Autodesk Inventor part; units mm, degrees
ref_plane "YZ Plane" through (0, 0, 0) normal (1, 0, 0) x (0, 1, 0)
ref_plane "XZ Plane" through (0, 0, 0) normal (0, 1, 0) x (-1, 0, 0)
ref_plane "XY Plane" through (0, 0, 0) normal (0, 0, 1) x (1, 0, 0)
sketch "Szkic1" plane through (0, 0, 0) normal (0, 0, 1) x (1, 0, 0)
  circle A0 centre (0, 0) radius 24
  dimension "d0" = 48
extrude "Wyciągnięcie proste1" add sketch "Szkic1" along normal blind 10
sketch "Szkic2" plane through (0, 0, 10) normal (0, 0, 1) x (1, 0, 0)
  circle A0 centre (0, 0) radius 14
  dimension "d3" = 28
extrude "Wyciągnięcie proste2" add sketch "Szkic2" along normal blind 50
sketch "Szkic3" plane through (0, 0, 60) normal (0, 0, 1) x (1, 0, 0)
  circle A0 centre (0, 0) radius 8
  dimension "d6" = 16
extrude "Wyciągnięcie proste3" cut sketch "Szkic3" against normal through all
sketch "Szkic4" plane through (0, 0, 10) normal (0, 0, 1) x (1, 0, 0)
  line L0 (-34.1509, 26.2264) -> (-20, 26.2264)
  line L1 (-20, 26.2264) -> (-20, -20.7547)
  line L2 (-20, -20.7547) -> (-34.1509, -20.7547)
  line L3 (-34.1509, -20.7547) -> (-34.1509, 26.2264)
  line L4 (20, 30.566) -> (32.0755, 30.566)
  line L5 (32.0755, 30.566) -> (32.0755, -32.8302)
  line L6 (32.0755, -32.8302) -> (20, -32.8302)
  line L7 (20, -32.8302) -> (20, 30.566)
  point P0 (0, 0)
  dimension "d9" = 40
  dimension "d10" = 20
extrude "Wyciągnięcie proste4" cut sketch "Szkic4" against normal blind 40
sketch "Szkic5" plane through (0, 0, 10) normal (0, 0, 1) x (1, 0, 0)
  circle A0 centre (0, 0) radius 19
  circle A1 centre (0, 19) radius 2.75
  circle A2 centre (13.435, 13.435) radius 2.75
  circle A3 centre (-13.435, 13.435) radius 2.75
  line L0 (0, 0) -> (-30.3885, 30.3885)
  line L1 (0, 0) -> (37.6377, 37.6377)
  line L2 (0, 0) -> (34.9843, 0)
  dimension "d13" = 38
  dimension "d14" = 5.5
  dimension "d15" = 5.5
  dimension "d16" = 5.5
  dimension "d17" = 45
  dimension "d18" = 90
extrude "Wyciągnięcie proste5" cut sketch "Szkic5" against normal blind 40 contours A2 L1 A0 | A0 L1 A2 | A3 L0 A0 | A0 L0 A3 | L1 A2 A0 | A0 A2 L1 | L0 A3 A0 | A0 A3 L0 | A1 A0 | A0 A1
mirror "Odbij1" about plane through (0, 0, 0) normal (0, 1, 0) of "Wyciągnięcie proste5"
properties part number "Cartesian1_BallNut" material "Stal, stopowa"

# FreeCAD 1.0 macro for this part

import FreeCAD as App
import Part
import Sketcher

V = App.Vector
Q = App.Units.Quantity

doc = App.newDocument("Part")
body = doc.addObject("PartDesign::Body", "Body")

# Sketch on XY plane
sketch1 = body.newObject("Sketcher::SketchObject", "Sketch")
sketch1.AttachmentSupport = (doc.getObject("XY_Plane"), [""])
sketch1.MapMode = "FlatFace"
sketch1.addGeometry(Part.Circle(V(0, 0, 0), V(0, 0, 1), 24), False)
sketch1.addConstraint(Sketcher.Constraint("Coincident", 0, 3, -1, 1))
sketch1.addConstraint(Sketcher.Constraint("Diameter", 0, Q("48 mm")))
pad1 = body.newObject("PartDesign::Pad", "Pad")
pad1.Profile = sketch1
pad1.Length = 10

# Sketch on XY plane
sketch2 = body.newObject("Sketcher::SketchObject", "Sketch001")
sketch2.AttachmentSupport = (doc.getObject("XY_Plane"), [""])
sketch2.MapMode = "FlatFace"
sketch2.AttachmentOffset = App.Placement(V(0, 0, 10), App.Rotation())
sketch2.addGeometry(Part.Circle(V(0, 0, 0), V(0, 0, 1), 14), False)
sketch2.addConstraint(Sketcher.Constraint("Coincident", 0, 3, -1, 1))
sketch2.addConstraint(Sketcher.Constraint("Diameter", 0, Q("28 mm")))
pad2 = body.newObject("PartDesign::Pad", "Pad001")
pad2.Profile = sketch2
pad2.Length = 50

# Sketch on XY plane
sketch3 = body.newObject("Sketcher::SketchObject", "Sketch002")
sketch3.AttachmentSupport = (doc.getObject("XY_Plane"), [""])
sketch3.MapMode = "FlatFace"
sketch3.AttachmentOffset = App.Placement(V(0, 0, 60), App.Rotation())
sketch3.addGeometry(Part.Circle(V(0, 0, 0), V(0, 0, 1), 8), False)
sketch3.addConstraint(Sketcher.Constraint("Coincident", 0, 3, -1, 1))
sketch3.addConstraint(Sketcher.Constraint("Diameter", 0, Q("16 mm")))
pocket1 = body.newObject("PartDesign::Pocket", "Pocket")
pocket1.Profile = sketch3
pocket1.Type = "ThroughAll"

# Sketch on XY plane
sketch4 = body.newObject("Sketcher::SketchObject", "Sketch003")
sketch4.AttachmentSupport = (doc.getObject("XY_Plane"), [""])
sketch4.MapMode = "FlatFace"
sketch4.AttachmentOffset = App.Placement(V(0, 0, 10), App.Rotation())
sketch4.addGeometry(Part.LineSegment(V(-20, 26.2264, 0), V(-34.1509, 26.2264, 0)), False)
sketch4.addGeometry(Part.LineSegment(V(-34.1509, 26.2264, 0), V(-34.1509, -20.7547, 0)), False)
sketch4.addGeometry(Part.LineSegment(V(-34.1509, -20.7547, 0), V(-20, -20.7547, 0)), False)
sketch4.addGeometry(Part.LineSegment(V(-20, -20.7547, 0), V(-20, 26.2264, 0)), False)
sketch4.addGeometry(Part.LineSegment(V(32.0755, 30.566, 0), V(20, 30.566, 0)), False)
sketch4.addGeometry(Part.LineSegment(V(20, 30.566, 0), V(20, -32.8302, 0)), False)
sketch4.addGeometry(Part.LineSegment(V(20, -32.8302, 0), V(32.0755, -32.8302, 0)), False)
sketch4.addGeometry(Part.LineSegment(V(32.0755, -32.8302, 0), V(32.0755, 30.566, 0)), False)
sketch4.addConstraint(Sketcher.Constraint("Coincident", 0, 2, 1, 1))
sketch4.addConstraint(Sketcher.Constraint("Coincident", 1, 2, 2, 1))
sketch4.addConstraint(Sketcher.Constraint("Coincident", 2, 2, 3, 1))
sketch4.addConstraint(Sketcher.Constraint("Coincident", 3, 2, 0, 1))
sketch4.addConstraint(Sketcher.Constraint("Coincident", 4, 2, 5, 1))
sketch4.addConstraint(Sketcher.Constraint("Coincident", 5, 2, 6, 1))
sketch4.addConstraint(Sketcher.Constraint("Coincident", 6, 2, 7, 1))
sketch4.addConstraint(Sketcher.Constraint("Coincident", 7, 2, 4, 1))
sketch4.addConstraint(Sketcher.Constraint("Horizontal", 0))
sketch4.addConstraint(Sketcher.Constraint("Vertical", 1))
sketch4.addConstraint(Sketcher.Constraint("Horizontal", 2))
sketch4.addConstraint(Sketcher.Constraint("Vertical", 3))
sketch4.addConstraint(Sketcher.Constraint("Horizontal", 4))
sketch4.addConstraint(Sketcher.Constraint("Vertical", 5))
sketch4.addConstraint(Sketcher.Constraint("Horizontal", 6))
sketch4.addConstraint(Sketcher.Constraint("Vertical", 7))
sketch4.addConstraint(Sketcher.Constraint("DistanceX", 2, 2, -1, 1, Q("20 mm")))
sketch4.addConstraint(Sketcher.Constraint("DistanceX", -1, 1, 4, 2, Q("20 mm")))
sketch4.addConstraint(Sketcher.Constraint("DistanceX", 0, 2, 0, 1, Q("14.151 mm")))
sketch4.addConstraint(Sketcher.Constraint("DistanceY", 1, 2, 1, 1, Q("46.981 mm")))
sketch4.addConstraint(Sketcher.Constraint("DistanceX", 4, 2, 4, 1, Q("12.0755 mm")))
sketch4.addConstraint(Sketcher.Constraint("DistanceY", 5, 2, 5, 1, Q("63.3962 mm")))
sketch4.addConstraint(Sketcher.Constraint("DistanceY", -1, 1, 4, 2, Q("30.566 mm")))
sketch4.addConstraint(Sketcher.Constraint("DistanceY", -1, 1, 0, 2, Q("26.2264 mm")))
pocket2 = body.newObject("PartDesign::Pocket", "Pocket001")
pocket2.Profile = sketch4
pocket2.Length = 40

# Sketch on XY plane
sketch5 = body.newObject("Sketcher::SketchObject", "Sketch004")
sketch5.AttachmentSupport = (doc.getObject("XY_Plane"), [""])
sketch5.MapMode = "FlatFace"
sketch5.AttachmentOffset = App.Placement(V(0, 0, 10), App.Rotation())
sketch5.addGeometry(Part.Circle(V(13.435, 13.435, 0), V(0, 0, 1), 2.75), False)
sketch5.addGeometry(Part.Circle(V(-13.435, 13.435, 0), V(0, 0, 1), 2.75), False)
sketch5.addGeometry(Part.Circle(V(0, 19, 0), V(0, 0, 1), 2.75), False)
sketch5.addConstraint(Sketcher.Constraint("Equal", 0, 1))
sketch5.addConstraint(Sketcher.Constraint("Equal", 1, 2))
sketch5.addConstraint(Sketcher.Constraint("Symmetric", 0, 3, 1, 3, -2))
sketch5.addConstraint(Sketcher.Constraint("PointOnObject", 2, 3, -2))
sketch5.addConstraint(Sketcher.Constraint("Diameter", 0, Q("5.5 mm")))
sketch5.addConstraint(Sketcher.Constraint("DistanceY", -1, 1, 2, 3, Q("19 mm")))
sketch5.addConstraint(Sketcher.Constraint("DistanceX", 1, 3, 0, 3, Q("26.87 mm")))
sketch5.addConstraint(Sketcher.Constraint("DistanceY", -1, 1, 0, 3, Q("13.435 mm")))
pocket3 = body.newObject("PartDesign::Pocket", "Pocket002")
pocket3.Profile = sketch5
pocket3.Length = 40
doc.recompute()

mirrored = body.newObject("PartDesign::Mirrored", "Mirrored")
mirrored.Originals = [pocket3]
mirrored.MirrorPlane = (doc.getObject("XZ_Plane"), [""])
body.Tip = mirrored

doc.recompute()
